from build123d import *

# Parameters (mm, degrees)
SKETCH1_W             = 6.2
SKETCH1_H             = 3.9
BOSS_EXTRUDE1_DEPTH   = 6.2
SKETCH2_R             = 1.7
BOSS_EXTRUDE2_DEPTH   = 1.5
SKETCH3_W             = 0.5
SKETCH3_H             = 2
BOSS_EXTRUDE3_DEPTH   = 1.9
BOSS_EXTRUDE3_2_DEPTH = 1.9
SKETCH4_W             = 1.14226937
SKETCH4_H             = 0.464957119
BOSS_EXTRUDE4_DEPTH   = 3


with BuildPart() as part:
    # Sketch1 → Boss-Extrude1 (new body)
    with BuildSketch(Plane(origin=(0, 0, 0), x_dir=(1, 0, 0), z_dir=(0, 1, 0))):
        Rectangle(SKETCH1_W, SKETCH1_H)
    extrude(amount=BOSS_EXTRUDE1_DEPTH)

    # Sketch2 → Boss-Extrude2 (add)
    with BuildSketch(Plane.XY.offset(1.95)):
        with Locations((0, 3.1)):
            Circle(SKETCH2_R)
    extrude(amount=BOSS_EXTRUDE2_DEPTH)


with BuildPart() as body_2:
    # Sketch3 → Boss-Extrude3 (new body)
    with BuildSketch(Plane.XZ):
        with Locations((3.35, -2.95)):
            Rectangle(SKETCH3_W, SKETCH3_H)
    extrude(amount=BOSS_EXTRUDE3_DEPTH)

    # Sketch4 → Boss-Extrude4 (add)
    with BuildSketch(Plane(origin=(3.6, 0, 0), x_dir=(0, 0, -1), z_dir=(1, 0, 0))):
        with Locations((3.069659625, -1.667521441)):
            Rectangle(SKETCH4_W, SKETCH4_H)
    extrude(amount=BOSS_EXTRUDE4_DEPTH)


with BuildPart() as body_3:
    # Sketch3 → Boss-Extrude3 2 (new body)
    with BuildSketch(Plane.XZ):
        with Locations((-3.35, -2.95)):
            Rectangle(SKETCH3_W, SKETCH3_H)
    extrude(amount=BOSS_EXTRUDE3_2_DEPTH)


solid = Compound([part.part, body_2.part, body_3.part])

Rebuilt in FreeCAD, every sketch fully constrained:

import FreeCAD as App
import Part
import Sketcher
from FreeCAD import Vector


def add_polygon(sketch, points):
    """Adds a closed chain of lines whose ends are joined by coincident constraints."""
    first, n = sketch.GeometryCount, len(points)
    for a, b in zip(points, points[1:] + points[:1]):
        sketch.addGeometry(Part.LineSegment(App.Vector(*a, 0), App.Vector(*b, 0)), False)
    for i in range(n):
        sketch.addConstraint(Sketcher.Constraint("Coincident", first + i, 2, first + (i + 1) % n, 1))

doc = App.newDocument("Part")
body = doc.addObject("PartDesign::Body", "Body")

# Sketch on XZ plane
sketch1 = body.newObject("Sketcher::SketchObject", "Sketch")
sketch1.AttachmentSupport = (doc.getObject("XZ_Plane"), [""])
sketch1.MapMode = "FlatFace"
add_polygon(sketch1, [(-3.1, -1.95), (-3.1, 1.95), (3.1, 1.95), (3.1, -1.95)])  # lines 0-3
sketch1.addConstraint(Sketcher.Constraint("Vertical", 0))
sketch1.addConstraint(Sketcher.Constraint("Horizontal", 1))
sketch1.addConstraint(Sketcher.Constraint("Vertical", 2))
sketch1.addConstraint(Sketcher.Constraint("Horizontal", 3))
sketch1.addConstraint(Sketcher.Constraint("Symmetric", 0, 2, 2, 2, -1, 1))
sketch1.addConstraint(Sketcher.Constraint("DistanceX", 1, 1, 1, 2, 6.2))
sketch1.addConstraint(Sketcher.Constraint("DistanceY", 0, 1, 0, 2, 3.9))
pad1 = body.newObject("PartDesign::Pad", "Pad")
pad1.Profile = sketch1
pad1.Length = 6.2
pad1.Reversed = True

# Sketch on XY plane
sketch2 = body.newObject("Sketcher::SketchObject", "Sketch001")
sketch2.AttachmentSupport = (doc.getObject("XY_Plane"), [""])
sketch2.MapMode = "FlatFace"
sketch2.AttachmentOffset = App.Placement(Vector(0, 0, 1.95), App.Rotation())
sketch2.addGeometry(Part.Circle(Vector(0, 3.1, 0), Vector(0, 0, 1), 1.7), False)
sketch2.addConstraint(Sketcher.Constraint("PointOnObject", 0, 3, -2))
sketch2.addConstraint(Sketcher.Constraint("Diameter", 0, 3.4))
sketch2.addConstraint(Sketcher.Constraint("DistanceY", -1, 1, 0, 3, 3.1))
pad2 = body.newObject("PartDesign::Pad", "Pad001")
pad2.Profile = sketch2
pad2.Length = 1.5
body2 = doc.addObject("PartDesign::Body", "Body001")

# Sketch on XZ plane
sketch3 = body2.newObject("Sketcher::SketchObject", "Sketch002")
sketch3.AttachmentSupport = (doc.getObject("XZ_Plane001"), [""])
sketch3.MapMode = "FlatFace"
add_polygon(sketch3, [(3.1, -1.95), (3.1, -3.95), (3.6, -3.95), (3.6, -1.95)])  # lines 0-3
sketch3.addConstraint(Sketcher.Constraint("Vertical", 0))
sketch3.addConstraint(Sketcher.Constraint("Horizontal", 1))
sketch3.addConstraint(Sketcher.Constraint("Vertical", 2))
sketch3.addConstraint(Sketcher.Constraint("Horizontal", 3))
sketch3.addConstraint(Sketcher.Constraint("DistanceY", 0, 2, 0, 1, 2.0))
sketch3.addConstraint(Sketcher.Constraint("DistanceX", 1, 1, 1, 2, 0.5))
sketch3.addConstraint(Sketcher.Constraint("DistanceX", -1, 1, 0, 2, 3.1))
sketch3.addConstraint(Sketcher.Constraint("DistanceY", 0, 2, -1, 1, 3.95))
pad3 = body2.newObject("PartDesign::Pad", "Pad002")
pad3.Profile = sketch3
pad3.Length = 1.9

# Sketch on YZ plane
sketch4 = body2.newObject("Sketcher::SketchObject", "Sketch003")
sketch4.AttachmentSupport = (doc.getObject("YZ_Plane001"), [""])
sketch4.MapMode = "FlatFace"
sketch4.AttachmentOffset = App.Placement(Vector(0, 0, 3.6), App.Rotation())
add_polygon(sketch4, [(-1.435043, -2.498525), (-1.9, -2.498525), (-1.9, -3.640794), (-1.435043, -3.640794)])  # lines 0-3
sketch4.addConstraint(Sketcher.Constraint("Horizontal", 0))
sketch4.addConstraint(Sketcher.Constraint("Vertical", 1))
sketch4.addConstraint(Sketcher.Constraint("Horizontal", 2))
sketch4.addConstraint(Sketcher.Constraint("Vertical", 3))
sketch4.addConstraint(Sketcher.Constraint("DistanceX", 0, 2, -1, 1, 1.9))
sketch4.addConstraint(Sketcher.Constraint("DistanceY", 1, 2, 1, 1, 1.142269))
sketch4.addConstraint(Sketcher.Constraint("DistanceX", 0, 2, 0, 1, 0.464957))
sketch4.addConstraint(Sketcher.Constraint("DistanceY", 0, 2, -1, 1, 2.498525))
pad4 = body2.newObject("PartDesign::Pad", "Pad003")
pad4.Profile = sketch4
pad4.Length = 3
body3 = doc.addObject("PartDesign::Body", "Body002")

# Sketch on XZ plane
sketch5 = body3.newObject("Sketcher::SketchObject", "Sketch004")
sketch5.AttachmentSupport = (doc.getObject("XZ_Plane002"), [""])
sketch5.MapMode = "FlatFace"
add_polygon(sketch5, [(-3.6, -1.95), (-3.6, -3.95), (-3.1, -3.95), (-3.1, -1.95)])  # lines 0-3
sketch5.addConstraint(Sketcher.Constraint("Vertical", 0))
sketch5.addConstraint(Sketcher.Constraint("Horizontal", 1))
sketch5.addConstraint(Sketcher.Constraint("Vertical", 2))
sketch5.addConstraint(Sketcher.Constraint("Horizontal", 3))
sketch5.addConstraint(Sketcher.Constraint("DistanceY", 0, 2, 0, 1, 2.0))
sketch5.addConstraint(Sketcher.Constraint("DistanceX", 1, 1, 1, 2, 0.5))
sketch5.addConstraint(Sketcher.Constraint("DistanceX", 0, 2, -1, 1, 3.6))
sketch5.addConstraint(Sketcher.Constraint("DistanceY", 0, 2, -1, 1, 3.95))
pad5 = body3.newObject("PartDesign::Pad", "Pad004")
pad5.Profile = sketch5
pad5.Length = 1.9

doc.recompute()
